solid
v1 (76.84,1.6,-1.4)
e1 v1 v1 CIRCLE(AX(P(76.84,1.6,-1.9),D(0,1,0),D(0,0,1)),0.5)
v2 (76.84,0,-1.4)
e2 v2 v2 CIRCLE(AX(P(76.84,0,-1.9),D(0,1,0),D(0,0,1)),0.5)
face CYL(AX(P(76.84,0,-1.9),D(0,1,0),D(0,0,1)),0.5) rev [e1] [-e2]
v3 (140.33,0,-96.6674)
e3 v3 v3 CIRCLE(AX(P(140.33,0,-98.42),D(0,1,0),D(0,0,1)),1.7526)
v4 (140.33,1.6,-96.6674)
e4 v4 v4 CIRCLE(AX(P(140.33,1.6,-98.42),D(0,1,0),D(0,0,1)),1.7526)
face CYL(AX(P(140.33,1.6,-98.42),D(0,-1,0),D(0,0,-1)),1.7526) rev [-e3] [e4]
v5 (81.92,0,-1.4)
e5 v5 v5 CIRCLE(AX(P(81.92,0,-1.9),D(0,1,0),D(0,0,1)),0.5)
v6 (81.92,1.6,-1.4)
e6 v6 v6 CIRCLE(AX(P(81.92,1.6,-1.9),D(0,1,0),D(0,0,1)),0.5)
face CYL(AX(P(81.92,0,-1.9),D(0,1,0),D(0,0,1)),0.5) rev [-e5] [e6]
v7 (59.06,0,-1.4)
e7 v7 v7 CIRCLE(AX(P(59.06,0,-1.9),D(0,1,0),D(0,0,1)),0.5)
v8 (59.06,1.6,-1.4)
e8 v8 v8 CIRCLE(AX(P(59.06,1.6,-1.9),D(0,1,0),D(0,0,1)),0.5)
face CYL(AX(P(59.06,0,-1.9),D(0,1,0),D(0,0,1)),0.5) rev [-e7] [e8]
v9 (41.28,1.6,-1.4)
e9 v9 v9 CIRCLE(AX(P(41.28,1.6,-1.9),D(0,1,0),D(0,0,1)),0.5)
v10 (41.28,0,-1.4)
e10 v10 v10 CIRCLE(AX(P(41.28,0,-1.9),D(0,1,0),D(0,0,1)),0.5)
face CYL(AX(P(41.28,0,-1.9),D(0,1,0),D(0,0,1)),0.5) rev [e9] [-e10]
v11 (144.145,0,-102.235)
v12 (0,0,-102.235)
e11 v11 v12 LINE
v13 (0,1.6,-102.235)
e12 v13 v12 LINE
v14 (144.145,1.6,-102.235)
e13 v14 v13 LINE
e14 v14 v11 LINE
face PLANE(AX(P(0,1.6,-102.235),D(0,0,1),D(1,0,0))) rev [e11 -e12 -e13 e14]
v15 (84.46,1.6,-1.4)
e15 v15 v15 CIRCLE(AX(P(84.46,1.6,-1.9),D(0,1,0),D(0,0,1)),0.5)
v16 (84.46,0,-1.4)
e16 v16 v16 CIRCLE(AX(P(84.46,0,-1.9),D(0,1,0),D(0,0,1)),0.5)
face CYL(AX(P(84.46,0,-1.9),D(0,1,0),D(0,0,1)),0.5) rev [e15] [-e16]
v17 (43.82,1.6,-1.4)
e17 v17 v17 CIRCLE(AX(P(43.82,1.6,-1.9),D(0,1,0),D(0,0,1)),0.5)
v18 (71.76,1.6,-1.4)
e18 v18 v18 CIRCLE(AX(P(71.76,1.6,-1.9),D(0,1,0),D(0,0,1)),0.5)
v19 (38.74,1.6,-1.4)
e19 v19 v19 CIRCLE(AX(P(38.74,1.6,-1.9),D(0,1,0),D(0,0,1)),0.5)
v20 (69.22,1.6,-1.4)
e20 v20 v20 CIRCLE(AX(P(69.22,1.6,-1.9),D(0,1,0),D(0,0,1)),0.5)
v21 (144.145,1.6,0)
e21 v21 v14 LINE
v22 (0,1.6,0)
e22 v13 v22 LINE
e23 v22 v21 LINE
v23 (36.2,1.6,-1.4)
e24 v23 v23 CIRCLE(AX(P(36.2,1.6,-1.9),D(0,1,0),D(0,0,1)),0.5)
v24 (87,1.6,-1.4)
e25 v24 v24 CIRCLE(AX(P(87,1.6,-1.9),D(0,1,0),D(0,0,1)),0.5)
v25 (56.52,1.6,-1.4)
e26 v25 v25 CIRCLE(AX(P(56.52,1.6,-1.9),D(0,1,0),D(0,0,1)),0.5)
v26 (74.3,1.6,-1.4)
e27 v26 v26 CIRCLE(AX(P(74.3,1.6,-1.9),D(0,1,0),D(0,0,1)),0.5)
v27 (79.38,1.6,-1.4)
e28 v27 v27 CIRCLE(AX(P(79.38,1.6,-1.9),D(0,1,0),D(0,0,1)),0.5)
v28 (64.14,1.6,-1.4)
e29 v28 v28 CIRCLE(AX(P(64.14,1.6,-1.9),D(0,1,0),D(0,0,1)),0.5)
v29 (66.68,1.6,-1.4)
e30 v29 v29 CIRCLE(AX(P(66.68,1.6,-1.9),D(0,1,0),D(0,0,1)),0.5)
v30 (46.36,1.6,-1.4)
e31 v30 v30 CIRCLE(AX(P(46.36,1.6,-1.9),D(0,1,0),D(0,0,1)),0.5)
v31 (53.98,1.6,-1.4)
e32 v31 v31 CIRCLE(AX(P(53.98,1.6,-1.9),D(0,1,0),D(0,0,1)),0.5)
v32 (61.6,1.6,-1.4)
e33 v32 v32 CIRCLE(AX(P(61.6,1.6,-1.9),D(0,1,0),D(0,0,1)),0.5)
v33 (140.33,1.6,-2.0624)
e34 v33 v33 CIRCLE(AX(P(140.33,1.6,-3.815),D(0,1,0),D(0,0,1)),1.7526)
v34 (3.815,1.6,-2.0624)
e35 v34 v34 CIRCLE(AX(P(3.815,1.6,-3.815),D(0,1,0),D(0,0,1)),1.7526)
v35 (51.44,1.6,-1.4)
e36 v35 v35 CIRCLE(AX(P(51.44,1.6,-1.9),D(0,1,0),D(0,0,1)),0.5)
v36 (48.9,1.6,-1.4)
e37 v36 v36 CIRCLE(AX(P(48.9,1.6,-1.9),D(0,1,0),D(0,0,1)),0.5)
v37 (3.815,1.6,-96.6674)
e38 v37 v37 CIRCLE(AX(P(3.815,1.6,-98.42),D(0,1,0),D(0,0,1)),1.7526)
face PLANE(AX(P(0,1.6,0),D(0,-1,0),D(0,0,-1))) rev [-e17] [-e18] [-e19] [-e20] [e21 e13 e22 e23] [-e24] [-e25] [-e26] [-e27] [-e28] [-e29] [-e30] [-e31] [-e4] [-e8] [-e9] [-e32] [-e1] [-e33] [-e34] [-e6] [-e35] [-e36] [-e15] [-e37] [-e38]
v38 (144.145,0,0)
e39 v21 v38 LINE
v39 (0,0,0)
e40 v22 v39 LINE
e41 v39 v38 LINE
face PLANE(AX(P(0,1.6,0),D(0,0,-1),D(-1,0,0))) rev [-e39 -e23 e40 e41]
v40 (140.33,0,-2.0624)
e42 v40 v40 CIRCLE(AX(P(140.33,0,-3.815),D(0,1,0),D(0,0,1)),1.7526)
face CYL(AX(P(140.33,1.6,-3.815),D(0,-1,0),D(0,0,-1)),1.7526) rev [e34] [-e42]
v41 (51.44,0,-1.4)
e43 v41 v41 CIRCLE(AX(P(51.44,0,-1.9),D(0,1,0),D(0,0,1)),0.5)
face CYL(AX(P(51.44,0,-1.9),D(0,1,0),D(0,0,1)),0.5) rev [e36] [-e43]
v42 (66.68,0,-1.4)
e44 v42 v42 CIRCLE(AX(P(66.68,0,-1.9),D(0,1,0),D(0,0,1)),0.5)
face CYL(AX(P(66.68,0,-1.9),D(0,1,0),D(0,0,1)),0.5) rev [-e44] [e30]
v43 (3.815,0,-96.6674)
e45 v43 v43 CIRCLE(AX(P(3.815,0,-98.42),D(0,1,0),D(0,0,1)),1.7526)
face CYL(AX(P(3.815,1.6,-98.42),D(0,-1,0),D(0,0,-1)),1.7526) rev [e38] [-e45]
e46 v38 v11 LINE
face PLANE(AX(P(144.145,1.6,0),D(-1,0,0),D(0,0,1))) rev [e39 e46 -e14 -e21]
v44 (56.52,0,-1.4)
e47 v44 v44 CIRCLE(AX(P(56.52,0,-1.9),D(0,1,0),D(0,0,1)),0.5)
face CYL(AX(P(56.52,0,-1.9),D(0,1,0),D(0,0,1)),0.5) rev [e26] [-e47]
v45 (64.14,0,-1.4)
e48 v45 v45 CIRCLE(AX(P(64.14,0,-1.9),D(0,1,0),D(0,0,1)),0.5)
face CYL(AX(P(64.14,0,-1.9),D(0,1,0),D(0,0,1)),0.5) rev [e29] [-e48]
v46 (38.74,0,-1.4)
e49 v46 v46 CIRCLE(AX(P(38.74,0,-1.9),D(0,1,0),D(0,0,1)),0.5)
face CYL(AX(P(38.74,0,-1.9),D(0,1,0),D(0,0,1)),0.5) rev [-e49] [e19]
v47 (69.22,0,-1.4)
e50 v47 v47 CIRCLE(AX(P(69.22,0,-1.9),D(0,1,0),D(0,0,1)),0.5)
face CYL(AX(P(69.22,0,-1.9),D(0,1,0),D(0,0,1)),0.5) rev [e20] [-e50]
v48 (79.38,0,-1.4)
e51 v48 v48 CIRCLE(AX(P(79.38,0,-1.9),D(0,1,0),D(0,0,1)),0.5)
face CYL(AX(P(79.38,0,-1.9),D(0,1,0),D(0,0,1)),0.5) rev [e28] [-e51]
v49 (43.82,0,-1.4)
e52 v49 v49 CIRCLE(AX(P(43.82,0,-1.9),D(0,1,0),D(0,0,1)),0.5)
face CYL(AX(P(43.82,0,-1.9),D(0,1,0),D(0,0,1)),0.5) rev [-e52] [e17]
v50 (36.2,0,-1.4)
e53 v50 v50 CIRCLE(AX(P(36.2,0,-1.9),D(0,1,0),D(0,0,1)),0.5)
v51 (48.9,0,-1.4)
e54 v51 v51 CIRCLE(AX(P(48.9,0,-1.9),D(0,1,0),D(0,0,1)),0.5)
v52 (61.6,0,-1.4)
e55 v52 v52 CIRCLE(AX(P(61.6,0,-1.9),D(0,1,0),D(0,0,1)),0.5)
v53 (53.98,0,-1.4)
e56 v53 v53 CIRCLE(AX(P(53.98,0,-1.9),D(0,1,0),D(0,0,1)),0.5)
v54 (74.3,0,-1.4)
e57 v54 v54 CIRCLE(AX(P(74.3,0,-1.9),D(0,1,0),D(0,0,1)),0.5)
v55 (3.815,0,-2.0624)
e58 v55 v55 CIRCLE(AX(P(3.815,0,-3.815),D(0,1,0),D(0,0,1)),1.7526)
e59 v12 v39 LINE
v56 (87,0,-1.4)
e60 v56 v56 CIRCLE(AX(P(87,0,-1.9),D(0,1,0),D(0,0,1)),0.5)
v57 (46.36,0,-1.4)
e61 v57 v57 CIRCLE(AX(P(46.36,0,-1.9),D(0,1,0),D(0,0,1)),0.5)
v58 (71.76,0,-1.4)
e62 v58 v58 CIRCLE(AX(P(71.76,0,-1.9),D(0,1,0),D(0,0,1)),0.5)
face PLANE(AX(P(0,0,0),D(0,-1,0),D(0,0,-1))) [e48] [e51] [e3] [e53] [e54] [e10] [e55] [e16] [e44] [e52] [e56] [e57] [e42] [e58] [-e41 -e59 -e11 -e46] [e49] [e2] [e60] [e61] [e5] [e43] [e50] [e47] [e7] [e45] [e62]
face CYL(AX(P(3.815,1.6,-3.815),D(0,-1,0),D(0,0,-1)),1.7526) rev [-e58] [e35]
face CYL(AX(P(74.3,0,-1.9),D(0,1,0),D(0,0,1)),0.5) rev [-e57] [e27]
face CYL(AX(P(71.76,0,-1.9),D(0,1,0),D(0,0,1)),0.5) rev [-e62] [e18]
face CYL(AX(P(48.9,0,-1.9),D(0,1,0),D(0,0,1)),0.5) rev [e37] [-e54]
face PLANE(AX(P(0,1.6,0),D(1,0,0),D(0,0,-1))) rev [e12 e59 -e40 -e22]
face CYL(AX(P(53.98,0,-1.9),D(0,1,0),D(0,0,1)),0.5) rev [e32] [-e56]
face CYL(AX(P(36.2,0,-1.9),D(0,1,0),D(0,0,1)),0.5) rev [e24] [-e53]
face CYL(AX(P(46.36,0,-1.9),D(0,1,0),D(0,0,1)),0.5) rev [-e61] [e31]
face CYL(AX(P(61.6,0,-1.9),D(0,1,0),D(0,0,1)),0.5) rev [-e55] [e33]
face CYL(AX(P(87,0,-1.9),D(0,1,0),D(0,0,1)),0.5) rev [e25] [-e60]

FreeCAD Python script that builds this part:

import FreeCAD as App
import Part
import Sketcher
from FreeCAD import Vector

doc = App.newDocument("Part")
body = doc.addObject("PartDesign::Body", "Body")

# Sketch on XZ plane
sketch1 = body.newObject("Sketcher::SketchObject", "Sketch")
sketch1.AttachmentSupport = (doc.getObject("XZ_Plane"), [""])
sketch1.MapMode = "FlatFace"
sketch1.addGeometry(Part.LineSegment(Vector(0, -102.2, 0), Vector(0, 0, 0)), False)
sketch1.addGeometry(Part.LineSegment(Vector(0, 0, 0), Vector(144.1, 0, 0)), False)
sketch1.addGeometry(Part.LineSegment(Vector(144.1, 0, 0), Vector(144.1, -102.2, 0)), False)
sketch1.addGeometry(Part.LineSegment(Vector(144.1, -102.2, 0), Vector(0, -102.2, 0)), False)
sketch1.addGeometry(Part.Circle(Vector(3.8, -3.8, 0), Vector(0, 0, 1), 1.8), False)
sketch1.addGeometry(Part.Circle(Vector(140.3, -3.8, 0), Vector(0, 0, 1), 1.8), False)
sketch1.addGeometry(Part.Circle(Vector(3.8, -98.4, 0), Vector(0, 0, 1), 1.8), False)
sketch1.addGeometry(Part.Circle(Vector(140.3, -98.4, 0), Vector(0, 0, 1), 1.8), False)
sketch1.addConstraint(Sketcher.Constraint("Coincident", 0, 2, 1, 1))
sketch1.addConstraint(Sketcher.Constraint("Coincident", 1, 2, 2, 1))
sketch1.addConstraint(Sketcher.Constraint("Coincident", 2, 2, 3, 1))
sketch1.addConstraint(Sketcher.Constraint("Coincident", 3, 2, 0, 1))
sketch1.addConstraint(Sketcher.Constraint("Vertical", 0))
sketch1.addConstraint(Sketcher.Constraint("Horizontal", 1))
sketch1.addConstraint(Sketcher.Constraint("Vertical", 2))
sketch1.addConstraint(Sketcher.Constraint("Horizontal", 3))
sketch1.addConstraint(Sketcher.Constraint("Coincident", 0, 2, -1, 1))
sketch1.addConstraint(Sketcher.Constraint("Equal", 4, 5))
sketch1.addConstraint(Sketcher.Constraint("Equal", 5, 6))
sketch1.addConstraint(Sketcher.Constraint("Equal", 6, 7))
sketch1.addConstraint(Sketcher.Constraint("Horizontal", 4, 3, 5, 3))
sketch1.addConstraint(Sketcher.Constraint("Horizontal", 6, 3, 7, 3))
sketch1.addConstraint(Sketcher.Constraint("Vertical", 4, 3, 6, 3))
sketch1.addConstraint(Sketcher.Constraint("Vertical", 5, 3, 7, 3))
sketch1.addConstraint(Sketcher.Constraint("Diameter", 4, 3.5052))
sketch1.addConstraint(Sketcher.Constraint("DistanceX", 1, 1, 1, 2, 144.145))
sketch1.addConstraint(Sketcher.Constraint("DistanceY", 0, 1, 0, 2, 102.235))
sketch1.addConstraint(Sketcher.Constraint("DistanceX", -1, 1, 5, 3, 140.33))
sketch1.addConstraint(Sketcher.Constraint("DistanceY", 6, 3, -1, 1, 98.42))
sketch1.addConstraint(Sketcher.Constraint("DistanceX", 4, 3, 1, 2, 140.33))
sketch1.addConstraint(Sketcher.Constraint("DistanceY", 2, 2, 5, 3, 98.42))
pad1 = body.newObject("PartDesign::Pad", "Pad")
pad1.Profile = sketch1
pad1.Length = 1.6
pad1.Reversed = True

# Sketch on XZ plane
sketch2 = body.newObject("Sketcher::SketchObject", "Sketch001")
sketch2.AttachmentSupport = (doc.getObject("XZ_Plane"), [""])
sketch2.MapMode = "FlatFace"
sketch2.AttachmentOffset = App.Placement(Vector(0, 0, -1.6), App.Rotation())
sketch2.addGeometry(Part.Circle(Vector(36.2, -1.9, 0), Vector(0, 0, 1), 0.5), False)
sketch2.addGeometry(Part.Circle(Vector(38.7, -1.9, 0), Vector(0, 0, 1), 0.5), False)
sketch2.addGeometry(Part.Circle(Vector(41.3, -1.9, 0), Vector(0, 0, 1), 0.5), False)
sketch2.addGeometry(Part.Circle(Vector(43.8, -1.9, 0), Vector(0, 0, 1), 0.5), False)
sketch2.addGeometry(Part.Circle(Vector(46.4, -1.9, 0), Vector(0, 0, 1), 0.5), False)
sketch2.addGeometry(Part.Circle(Vector(48.9, -1.9, 0), Vector(0, 0, 1), 0.5), False)
sketch2.addGeometry(Part.Circle(Vector(51.4, -1.9, 0), Vector(0, 0, 1), 0.5), False)
sketch2.addGeometry(Part.Circle(Vector(54, -1.9, 0), Vector(0, 0, 1), 0.5), False)
sketch2.addGeometry(Part.Circle(Vector(56.5, -1.9, 0), Vector(0, 0, 1), 0.5), False)
sketch2.addGeometry(Part.Circle(Vector(59.1, -1.9, 0), Vector(0, 0, 1), 0.5), False)
sketch2.addGeometry(Part.Circle(Vector(61.6, -1.9, 0), Vector(0, 0, 1), 0.5), False)
sketch2.addGeometry(Part.Circle(Vector(64.1, -1.9, 0), Vector(0, 0, 1), 0.5), False)
sketch2.addGeometry(Part.Circle(Vector(66.7, -1.9, 0), Vector(0, 0, 1), 0.5), False)
sketch2.addGeometry(Part.Circle(Vector(69.2, -1.9, 0), Vector(0, 0, 1), 0.5), False)
sketch2.addGeometry(Part.Circle(Vector(71.8, -1.9, 0), Vector(0, 0, 1), 0.5), False)
sketch2.addGeometry(Part.Circle(Vector(74.3, -1.9, 0), Vector(0, 0, 1), 0.5), False)
sketch2.addGeometry(Part.Circle(Vector(76.8, -1.9, 0), Vector(0, 0, 1), 0.5), False)
sketch2.addGeometry(Part.Circle(Vector(79.4, -1.9, 0), Vector(0, 0, 1), 0.5), False)
sketch2.addGeometry(Part.Circle(Vector(81.9, -1.9, 0), Vector(0, 0, 1), 0.5), False)
sketch2.addGeometry(Part.Circle(Vector(84.5, -1.9, 0), Vector(0, 0, 1), 0.5), False)
sketch2.addGeometry(Part.Circle(Vector(87, -1.9, 0), Vector(0, 0, 1), 0.5), False)
sketch2.addConstraint(Sketcher.Constraint("Equal", 0, 1))
sketch2.addConstraint(Sketcher.Constraint("Equal", 1, 2))
sketch2.addConstraint(Sketcher.Constraint("Equal", 2, 3))
sketch2.addConstraint(Sketcher.Constraint("Equal", 3, 4))
sketch2.addConstraint(Sketcher.Constraint("Equal", 4, 5))
sketch2.addConstraint(Sketcher.Constraint("Equal", 5, 6))
sketch2.addConstraint(Sketcher.Constraint("Equal", 6, 7))
sketch2.addConstraint(Sketcher.Constraint("Equal", 7, 8))
sketch2.addConstraint(Sketcher.Constraint("Equal", 8, 9))
sketch2.addConstraint(Sketcher.Constraint("Equal", 9, 10))
sketch2.addConstraint(Sketcher.Constraint("Equal", 10, 11))
sketch2.addConstraint(Sketcher.Constraint("Equal", 11, 12))
sketch2.addConstraint(Sketcher.Constraint("Equal", 12, 13))
sketch2.addConstraint(Sketcher.Constraint("Equal", 13, 14))
sketch2.addConstraint(Sketcher.Constraint("Equal", 14, 15))
sketch2.addConstraint(Sketcher.Constraint("Equal", 15, 16))
sketch2.addConstraint(Sketcher.Constraint("Equal", 16, 17))
sketch2.addConstraint(Sketcher.Constraint("Equal", 17, 18))
sketch2.addConstraint(Sketcher.Constraint("Equal", 18, 19))
sketch2.addConstraint(Sketcher.Constraint("Equal", 19, 20))
sketch2.addConstraint(Sketcher.Constraint("Horizontal", 0, 3, 1, 3))
sketch2.addConstraint(Sketcher.Constraint("Horizontal", 1, 3, 2, 3))
sketch2.addConstraint(Sketcher.Constraint("Horizontal", 2, 3, 3, 3))
sketch2.addConstraint(Sketcher.Constraint("Horizontal", 3, 3, 4, 3))
sketch2.addConstraint(Sketcher.Constraint("Horizontal", 4, 3, 5, 3))
sketch2.addConstraint(Sketcher.Constraint("Horizontal", 5, 3, 6, 3))
sketch2.addConstraint(Sketcher.Constraint("Horizontal", 6, 3, 7, 3))
sketch2.addConstraint(Sketcher.Constraint("Horizontal", 7, 3, 8, 3))
sketch2.addConstraint(Sketcher.Constraint("Horizontal", 8, 3, 9, 3))
sketch2.addConstraint(Sketcher.Constraint("Horizontal", 9, 3, 10, 3))
sketch2.addConstraint(Sketcher.Constraint("Horizontal", 10, 3, 11, 3))
sketch2.addConstraint(Sketcher.Constraint("Horizontal", 11, 3, 12, 3))
sketch2.addConstraint(Sketcher.Constraint("Horizontal", 12, 3, 13, 3))
sketch2.addConstraint(Sketcher.Constraint("Horizontal", 13, 3, 14, 3))
sketch2.addConstraint(Sketcher.Constraint("Horizontal", 14, 3, 15, 3))
sketch2.addConstraint(Sketcher.Constraint("Horizontal", 15, 3, 16, 3))
sketch2.addConstraint(Sketcher.Constraint("Horizontal", 16, 3, 17, 3))
sketch2.addConstraint(Sketcher.Constraint("Horizontal", 17, 3, 18, 3))
sketch2.addConstraint(Sketcher.Constraint("Horizontal", 18, 3, 19, 3))
sketch2.addConstraint(Sketcher.Constraint("Horizontal", 19, 3, 20, 3))
sketch2.addConstraint(Sketcher.Constraint("Diameter", 0, 1.0))
sketch2.addConstraint(Sketcher.Constraint("DistanceX", -1, 1, 20, 3, 87.0))
sketch2.addConstraint(Sketcher.Constraint("DistanceX", -1, 1, 0, 3, 36.2))
sketch2.addConstraint(Sketcher.Constraint("DistanceY", 0, 3, -1, 1, 1.9))
sketch2.addConstraint(Sketcher.Constraint("DistanceX", -1, 1, 5, 3, 48.9))
sketch2.addConstraint(Sketcher.Constraint("DistanceX", -1, 1, 10, 3, 61.6))
sketch2.addConstraint(Sketcher.Constraint("DistanceX", -1, 1, 15, 3, 74.3))
sketch2.addConstraint(Sketcher.Constraint("DistanceX", 1, 3, 6, 3, 12.7))
sketch2.addConstraint(Sketcher.Constraint("DistanceX", 2, 3, 7, 3, 12.7))
sketch2.addConstraint(Sketcher.Constraint("DistanceX", 3, 3, 8, 3, 12.7))
sketch2.addConstraint(Sketcher.Constraint("DistanceX", 4, 3, 9, 3, 12.7))
sketch2.addConstraint(Sketcher.Constraint("DistanceX", 6, 3, 11, 3, 12.7))
sketch2.addConstraint(Sketcher.Constraint("DistanceX", 7, 3, 12, 3, 12.7))
sketch2.addConstraint(Sketcher.Constraint("DistanceX", 8, 3, 13, 3, 12.7))
sketch2.addConstraint(Sketcher.Constraint("DistanceX", 9, 3, 14, 3, 12.7))
sketch2.addConstraint(Sketcher.Constraint("DistanceX", 11, 3, 16, 3, 12.7))
sketch2.addConstraint(Sketcher.Constraint("DistanceX", 12, 3, 17, 3, 12.7))
sketch2.addConstraint(Sketcher.Constraint("DistanceX", 13, 3, 18, 3, 12.7))
sketch2.addConstraint(Sketcher.Constraint("DistanceX", 14, 3, 19, 3, 12.7))
sketch2.addConstraint(Sketcher.Constraint("DistanceX", -1, 1, 1, 3, 38.74))
sketch2.addConstraint(Sketcher.Constraint("DistanceX", -1, 1, 2, 3, 41.28))
sketch2.addConstraint(Sketcher.Constraint("DistanceX", -1, 1, 3, 3, 43.82))
sketch2.addConstraint(Sketcher.Constraint("DistanceX", -1, 1, 4, 3, 46.36))
pocket1 = body.newObject("PartDesign::Pocket", "Pocket")
pocket1.Profile = sketch2
pocket1.Type = "ThroughAll"
pocket1.Reversed = True

doc.recompute()
